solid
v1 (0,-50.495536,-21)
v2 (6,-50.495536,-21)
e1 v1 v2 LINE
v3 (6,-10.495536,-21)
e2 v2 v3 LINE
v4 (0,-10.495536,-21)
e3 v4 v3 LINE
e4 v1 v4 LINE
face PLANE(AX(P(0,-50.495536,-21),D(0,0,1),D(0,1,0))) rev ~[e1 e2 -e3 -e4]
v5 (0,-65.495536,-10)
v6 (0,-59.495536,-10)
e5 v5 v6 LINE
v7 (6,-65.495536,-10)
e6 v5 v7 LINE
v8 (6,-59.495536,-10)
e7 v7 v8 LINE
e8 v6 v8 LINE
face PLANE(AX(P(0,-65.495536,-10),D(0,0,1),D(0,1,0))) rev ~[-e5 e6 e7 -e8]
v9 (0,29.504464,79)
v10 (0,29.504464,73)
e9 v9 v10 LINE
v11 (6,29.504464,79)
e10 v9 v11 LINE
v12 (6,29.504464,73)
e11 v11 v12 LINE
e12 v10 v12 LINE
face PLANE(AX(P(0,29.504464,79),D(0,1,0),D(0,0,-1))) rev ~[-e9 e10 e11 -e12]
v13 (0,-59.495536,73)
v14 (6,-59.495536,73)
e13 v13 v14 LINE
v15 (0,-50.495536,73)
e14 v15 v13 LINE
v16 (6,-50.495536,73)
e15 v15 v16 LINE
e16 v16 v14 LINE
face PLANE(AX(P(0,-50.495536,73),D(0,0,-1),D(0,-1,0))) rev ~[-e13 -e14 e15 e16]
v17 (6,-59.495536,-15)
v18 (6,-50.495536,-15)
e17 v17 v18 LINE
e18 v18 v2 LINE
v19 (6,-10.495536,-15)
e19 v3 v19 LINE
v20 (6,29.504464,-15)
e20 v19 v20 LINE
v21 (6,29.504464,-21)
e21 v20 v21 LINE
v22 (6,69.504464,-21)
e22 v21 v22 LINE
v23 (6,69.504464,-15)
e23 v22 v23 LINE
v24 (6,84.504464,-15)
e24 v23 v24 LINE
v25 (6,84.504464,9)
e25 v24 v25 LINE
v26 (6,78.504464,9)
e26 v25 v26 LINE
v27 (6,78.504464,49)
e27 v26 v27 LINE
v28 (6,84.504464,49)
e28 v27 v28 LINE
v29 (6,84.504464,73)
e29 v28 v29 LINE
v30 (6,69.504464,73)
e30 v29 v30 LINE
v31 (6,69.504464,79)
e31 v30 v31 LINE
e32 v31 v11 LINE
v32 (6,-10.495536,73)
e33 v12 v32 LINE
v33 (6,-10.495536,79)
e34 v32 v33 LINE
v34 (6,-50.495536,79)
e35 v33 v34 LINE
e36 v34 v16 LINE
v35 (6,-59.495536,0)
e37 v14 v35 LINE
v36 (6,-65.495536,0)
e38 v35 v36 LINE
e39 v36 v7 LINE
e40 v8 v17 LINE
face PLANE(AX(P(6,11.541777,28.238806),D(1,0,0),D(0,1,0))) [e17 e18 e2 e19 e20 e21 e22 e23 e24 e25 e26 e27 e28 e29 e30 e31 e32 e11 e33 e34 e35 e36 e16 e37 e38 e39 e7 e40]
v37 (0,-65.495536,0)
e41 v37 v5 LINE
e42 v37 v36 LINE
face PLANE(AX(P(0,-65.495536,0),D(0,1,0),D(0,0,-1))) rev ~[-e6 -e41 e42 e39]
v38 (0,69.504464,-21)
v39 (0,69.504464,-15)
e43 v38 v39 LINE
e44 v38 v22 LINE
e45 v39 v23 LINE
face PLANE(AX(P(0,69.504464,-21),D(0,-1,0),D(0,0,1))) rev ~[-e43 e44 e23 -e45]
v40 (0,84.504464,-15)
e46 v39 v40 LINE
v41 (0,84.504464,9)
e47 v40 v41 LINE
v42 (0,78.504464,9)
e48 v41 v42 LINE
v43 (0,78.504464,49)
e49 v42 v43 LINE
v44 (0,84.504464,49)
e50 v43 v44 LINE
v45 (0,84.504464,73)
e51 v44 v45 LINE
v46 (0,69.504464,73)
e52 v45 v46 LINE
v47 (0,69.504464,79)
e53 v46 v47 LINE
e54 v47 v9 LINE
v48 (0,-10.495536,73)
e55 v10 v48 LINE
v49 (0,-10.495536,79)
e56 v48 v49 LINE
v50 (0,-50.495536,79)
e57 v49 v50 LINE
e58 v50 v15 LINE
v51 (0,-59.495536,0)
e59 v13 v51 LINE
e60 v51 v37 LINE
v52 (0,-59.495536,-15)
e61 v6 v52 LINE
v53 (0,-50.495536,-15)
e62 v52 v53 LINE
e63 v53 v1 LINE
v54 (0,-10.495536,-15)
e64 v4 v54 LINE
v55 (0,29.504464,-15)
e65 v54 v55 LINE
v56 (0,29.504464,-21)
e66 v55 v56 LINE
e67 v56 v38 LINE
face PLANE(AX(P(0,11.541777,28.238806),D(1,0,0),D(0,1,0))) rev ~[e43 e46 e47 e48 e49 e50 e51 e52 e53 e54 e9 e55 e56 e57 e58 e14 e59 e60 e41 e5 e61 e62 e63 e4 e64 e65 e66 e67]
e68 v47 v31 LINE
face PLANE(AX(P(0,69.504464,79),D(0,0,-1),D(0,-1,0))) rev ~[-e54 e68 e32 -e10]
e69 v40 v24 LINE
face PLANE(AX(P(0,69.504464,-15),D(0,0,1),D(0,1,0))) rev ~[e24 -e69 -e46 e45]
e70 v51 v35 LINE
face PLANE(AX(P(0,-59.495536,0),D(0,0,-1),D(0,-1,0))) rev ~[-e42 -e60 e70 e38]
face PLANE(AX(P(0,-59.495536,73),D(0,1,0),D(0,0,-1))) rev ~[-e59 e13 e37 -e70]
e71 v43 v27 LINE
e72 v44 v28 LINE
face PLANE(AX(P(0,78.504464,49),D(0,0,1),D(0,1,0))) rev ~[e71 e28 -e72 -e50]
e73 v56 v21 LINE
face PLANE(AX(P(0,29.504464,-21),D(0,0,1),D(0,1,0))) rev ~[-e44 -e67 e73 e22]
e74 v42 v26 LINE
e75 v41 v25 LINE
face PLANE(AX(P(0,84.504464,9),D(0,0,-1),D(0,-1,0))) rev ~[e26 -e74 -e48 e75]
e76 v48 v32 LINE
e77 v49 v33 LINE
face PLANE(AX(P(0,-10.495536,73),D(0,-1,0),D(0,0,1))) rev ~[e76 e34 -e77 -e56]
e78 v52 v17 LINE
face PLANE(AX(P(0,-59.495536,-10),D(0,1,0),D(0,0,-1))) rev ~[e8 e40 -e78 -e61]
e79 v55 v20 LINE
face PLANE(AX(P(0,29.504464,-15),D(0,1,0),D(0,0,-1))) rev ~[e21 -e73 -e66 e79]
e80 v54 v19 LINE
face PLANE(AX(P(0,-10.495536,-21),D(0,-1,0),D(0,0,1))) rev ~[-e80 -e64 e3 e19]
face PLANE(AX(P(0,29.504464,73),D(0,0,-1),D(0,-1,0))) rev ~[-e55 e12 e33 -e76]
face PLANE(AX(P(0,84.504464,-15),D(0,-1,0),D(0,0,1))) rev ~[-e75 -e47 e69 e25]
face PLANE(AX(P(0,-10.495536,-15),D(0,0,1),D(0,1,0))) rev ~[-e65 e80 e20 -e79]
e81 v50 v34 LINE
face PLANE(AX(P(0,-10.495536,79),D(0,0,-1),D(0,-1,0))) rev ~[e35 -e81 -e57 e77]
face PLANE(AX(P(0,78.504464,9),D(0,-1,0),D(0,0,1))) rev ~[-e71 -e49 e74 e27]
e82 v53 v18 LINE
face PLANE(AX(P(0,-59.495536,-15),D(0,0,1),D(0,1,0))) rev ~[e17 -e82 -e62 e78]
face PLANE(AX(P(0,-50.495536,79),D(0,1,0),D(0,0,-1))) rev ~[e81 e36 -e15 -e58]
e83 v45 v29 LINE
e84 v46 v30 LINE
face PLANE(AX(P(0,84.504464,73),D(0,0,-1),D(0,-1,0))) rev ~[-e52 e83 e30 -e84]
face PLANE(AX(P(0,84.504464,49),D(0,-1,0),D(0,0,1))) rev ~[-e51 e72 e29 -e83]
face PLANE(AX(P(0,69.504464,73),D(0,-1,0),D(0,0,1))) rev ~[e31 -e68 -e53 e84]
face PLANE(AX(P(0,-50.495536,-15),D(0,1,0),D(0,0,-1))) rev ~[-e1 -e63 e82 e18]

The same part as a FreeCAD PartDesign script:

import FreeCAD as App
import Part
import Sketcher

V = App.Vector

doc = App.newDocument("Part")
params = doc.addObject("Spreadsheet::Sheet", "Params")
for row, (alias, value) in enumerate([
    ("sketch1_width", "9 mm"),
    ("sketch1_width2", "6 mm"),
    ("sketch1_width3", "40 mm"),
    ("sketch1_width4", "15 mm"),
    ("sketch1_height", "73 mm"),
    ("pad1_length", "6 mm"),
], start=1):
    params.set(f"A{row}", alias)
    params.set(f"B{row}", "=" + value)
    params.setAlias(f"B{row}", alias)

body = doc.addObject("PartDesign::Body", "Body")

# Sketch on YZ plane
sketch1 = body.newObject("Sketcher::SketchObject", "Sketch")
sketch1.AttachmentSupport = (doc.getObject("YZ_Plane"), [""])
sketch1.MapMode = "FlatFace"
sketch1.addGeometry([
    Part.LineSegment(V(-50.495536, 79, 0), V(-50.495536, 73, 0)),  # 0
    Part.LineSegment(V(-50.495536, 73, 0), V(-59.495536, 73, 0)),  # 1
    Part.LineSegment(V(-59.495536, 73, 0), V(-59.495536, 0, 0)),  # 2
    Part.LineSegment(V(-59.495536, 0, 0), V(-65.495536, 0, 0)),  # 3
    Part.LineSegment(V(-65.495536, 0, 0), V(-65.495536, -10, 0)),  # 4
    Part.LineSegment(V(-65.495536, -10, 0), V(-59.495536, -10, 0)),  # 5
    Part.LineSegment(V(-59.495536, -10, 0), V(-59.495536, -15, 0)),  # 6
    Part.LineSegment(V(-59.495536, -15, 0), V(-50.495536, -15, 0)),  # 7
    Part.LineSegment(V(-50.495536, -15, 0), V(-50.495536, -21, 0)),  # 8
    Part.LineSegment(V(-50.495536, -21, 0), V(-10.495536, -21, 0)),  # 9
    Part.LineSegment(V(-10.495536, -21, 0), V(-10.495536, -15, 0)),  # 10
    Part.LineSegment(V(-10.495536, -15, 0), V(29.504464, -15, 0)),  # 11
    Part.LineSegment(V(29.504464, -15, 0), V(29.504464, -21, 0)),  # 12
    Part.LineSegment(V(29.504464, -21, 0), V(69.504464, -21, 0)),  # 13
    Part.LineSegment(V(69.504464, -21, 0), V(69.504464, -15, 0)),  # 14
    Part.LineSegment(V(69.504464, -15, 0), V(84.504464, -15, 0)),  # 15
    Part.LineSegment(V(84.504464, -15, 0), V(84.504464, 9, 0)),  # 16
    Part.LineSegment(V(84.504464, 9, 0), V(78.504464, 9, 0)),  # 17
    Part.LineSegment(V(78.504464, 9, 0), V(78.504464, 49, 0)),  # 18
    Part.LineSegment(V(78.504464, 49, 0), V(84.504464, 49, 0)),  # 19
    Part.LineSegment(V(84.504464, 49, 0), V(84.504464, 73, 0)),  # 20
    Part.LineSegment(V(84.504464, 73, 0), V(69.504464, 73, 0)),  # 21
    Part.LineSegment(V(69.504464, 73, 0), V(69.504464, 79, 0)),  # 22
    Part.LineSegment(V(69.504464, 79, 0), V(29.504464, 79, 0)),  # 23
    Part.LineSegment(V(29.504464, 79, 0), V(29.504464, 73, 0)),  # 24
    Part.LineSegment(V(29.504464, 73, 0), V(-10.495536, 73, 0)),  # 25
    Part.LineSegment(V(-10.495536, 73, 0), V(-10.495536, 79, 0)),  # 26
    Part.LineSegment(V(-10.495536, 79, 0), V(-50.495536, 79, 0)),  # 27
], False)
sketch1.addConstraint([
    Sketcher.Constraint("Coincident", 0, 2, 1, 1),
    Sketcher.Constraint("Coincident", 1, 2, 2, 1),
    Sketcher.Constraint("Coincident", 2, 2, 3, 1),
    Sketcher.Constraint("Coincident", 3, 2, 4, 1),
    Sketcher.Constraint("Coincident", 4, 2, 5, 1),
    Sketcher.Constraint("Coincident", 5, 2, 6, 1),
    Sketcher.Constraint("Coincident", 6, 2, 7, 1),
    Sketcher.Constraint("Coincident", 7, 2, 8, 1),
    Sketcher.Constraint("Coincident", 8, 2, 9, 1),
    Sketcher.Constraint("Coincident", 9, 2, 10, 1),
    Sketcher.Constraint("Coincident", 10, 2, 11, 1),
    Sketcher.Constraint("Coincident", 11, 2, 12, 1),
    Sketcher.Constraint("Coincident", 12, 2, 13, 1),
    Sketcher.Constraint("Coincident", 13, 2, 14, 1),
    Sketcher.Constraint("Coincident", 14, 2, 15, 1),
    Sketcher.Constraint("Coincident", 15, 2, 16, 1),
    Sketcher.Constraint("Coincident", 16, 2, 17, 1),
    Sketcher.Constraint("Coincident", 17, 2, 18, 1),
    Sketcher.Constraint("Coincident", 18, 2, 19, 1),
    Sketcher.Constraint("Coincident", 19, 2, 20, 1),
    Sketcher.Constraint("Coincident", 20, 2, 21, 1),
    Sketcher.Constraint("Coincident", 21, 2, 22, 1),
    Sketcher.Constraint("Coincident", 22, 2, 23, 1),
    Sketcher.Constraint("Coincident", 23, 2, 24, 1),
    Sketcher.Constraint("Coincident", 24, 2, 25, 1),
    Sketcher.Constraint("Coincident", 25, 2, 26, 1),
    Sketcher.Constraint("Coincident", 26, 2, 27, 1),
    Sketcher.Constraint("Coincident", 27, 2, 0, 1),
    Sketcher.Constraint("Vertical", 0),
    Sketcher.Constraint("Horizontal", 1),
    Sketcher.Constraint("Vertical", 2),
    Sketcher.Constraint("Horizontal", 3),
    Sketcher.Constraint("Vertical", 4),
    Sketcher.Constraint("Horizontal", 5),
    Sketcher.Constraint("Vertical", 6),
    Sketcher.Constraint("Horizontal", 7),
    Sketcher.Constraint("Vertical", 8),
    Sketcher.Constraint("Horizontal", 9),
    Sketcher.Constraint("Vertical", 10),
    Sketcher.Constraint("Horizontal", 11),
    Sketcher.Constraint("Vertical", 12),
    Sketcher.Constraint("Horizontal", 13),
    Sketcher.Constraint("Vertical", 14),
    Sketcher.Constraint("Horizontal", 15),
    Sketcher.Constraint("Vertical", 16),
    Sketcher.Constraint("Horizontal", 17),
    Sketcher.Constraint("Vertical", 18),
    Sketcher.Constraint("Horizontal", 19),
    Sketcher.Constraint("Vertical", 20),
    Sketcher.Constraint("Horizontal", 21),
    Sketcher.Constraint("Vertical", 22),
    Sketcher.Constraint("Horizontal", 23),
    Sketcher.Constraint("Vertical", 24),
    Sketcher.Constraint("Horizontal", 25),
    Sketcher.Constraint("Vertical", 26),
    Sketcher.Constraint("Horizontal", 27),
    Sketcher.Constraint("PointOnObject", 2, 2, -1),
    Sketcher.Constraint("Horizontal", 7, 2, 10, 2),
    Sketcher.Constraint("Horizontal", 9, 2, 12, 2),
    Sketcher.Constraint("Horizontal", 11, 2, 14, 2),
    Sketcher.Constraint("Horizontal", 1, 2, 20, 2),
    Sketcher.Constraint("Horizontal", 21, 2, 24, 2),
    Sketcher.Constraint("Horizontal", 23, 2, 26, 2),
    Sketcher.Constraint("Vertical", 2, 2, 5, 2),
    Sketcher.Constraint("Vertical", 0, 2, 7, 2),
    Sketcher.Constraint("Vertical", 16, 2, 19, 2),
    Sketcher.Constraint("Vertical", 14, 2, 21, 2),
    Sketcher.Constraint("Vertical", 12, 2, 23, 2),
    Sketcher.Constraint("Vertical", 10, 2, 25, 2),
    Sketcher.Constraint("Equal", 9, 11),
    Sketcher.Constraint("Equal", 11, 13),
    Sketcher.Constraint("Equal", 5, 17),
    Sketcher.Constraint("Equal", 19, 0),
    Sketcher.Constraint("Equal", 0, 8),
    Sketcher.Constraint("Equal", 27, 18),
    Sketcher.Constraint("Equal", 16, 20),
    Sketcher.Constraint("DistanceX", 1, 2, 1, 1, 9.0),
    Sketcher.Constraint("DistanceX", 3, 2, 3, 1, 6.0),
    Sketcher.Constraint("DistanceX", 9, 1, 9, 2, 40.0),
    Sketcher.Constraint("DistanceX", 15, 1, 15, 2, 15.0),
    Sketcher.Constraint("DistanceY", 2, 2, 2, 1, 73.0),
    Sketcher.Constraint("DistanceY", 4, 2, 4, 1, 10.0),
    Sketcher.Constraint("DistanceY", 6, 2, 6, 1, 5.0),
    Sketcher.Constraint("DistanceX", 0, 2, -1, 1, 50.495536),
])
sketch1.setExpression("Constraints[76]", "Params.sketch1_width")
sketch1.setExpression("Constraints[77]", "Params.sketch1_width2")
sketch1.setExpression("Constraints[78]", "Params.sketch1_width3")
sketch1.setExpression("Constraints[79]", "Params.sketch1_width4")
sketch1.setExpression("Constraints[80]", "Params.sketch1_height")
pad1 = body.newObject("PartDesign::Pad", "Pad")
pad1.Profile = sketch1
pad1.setExpression("Length", "Params.pad1_length")

doc.recompute()
